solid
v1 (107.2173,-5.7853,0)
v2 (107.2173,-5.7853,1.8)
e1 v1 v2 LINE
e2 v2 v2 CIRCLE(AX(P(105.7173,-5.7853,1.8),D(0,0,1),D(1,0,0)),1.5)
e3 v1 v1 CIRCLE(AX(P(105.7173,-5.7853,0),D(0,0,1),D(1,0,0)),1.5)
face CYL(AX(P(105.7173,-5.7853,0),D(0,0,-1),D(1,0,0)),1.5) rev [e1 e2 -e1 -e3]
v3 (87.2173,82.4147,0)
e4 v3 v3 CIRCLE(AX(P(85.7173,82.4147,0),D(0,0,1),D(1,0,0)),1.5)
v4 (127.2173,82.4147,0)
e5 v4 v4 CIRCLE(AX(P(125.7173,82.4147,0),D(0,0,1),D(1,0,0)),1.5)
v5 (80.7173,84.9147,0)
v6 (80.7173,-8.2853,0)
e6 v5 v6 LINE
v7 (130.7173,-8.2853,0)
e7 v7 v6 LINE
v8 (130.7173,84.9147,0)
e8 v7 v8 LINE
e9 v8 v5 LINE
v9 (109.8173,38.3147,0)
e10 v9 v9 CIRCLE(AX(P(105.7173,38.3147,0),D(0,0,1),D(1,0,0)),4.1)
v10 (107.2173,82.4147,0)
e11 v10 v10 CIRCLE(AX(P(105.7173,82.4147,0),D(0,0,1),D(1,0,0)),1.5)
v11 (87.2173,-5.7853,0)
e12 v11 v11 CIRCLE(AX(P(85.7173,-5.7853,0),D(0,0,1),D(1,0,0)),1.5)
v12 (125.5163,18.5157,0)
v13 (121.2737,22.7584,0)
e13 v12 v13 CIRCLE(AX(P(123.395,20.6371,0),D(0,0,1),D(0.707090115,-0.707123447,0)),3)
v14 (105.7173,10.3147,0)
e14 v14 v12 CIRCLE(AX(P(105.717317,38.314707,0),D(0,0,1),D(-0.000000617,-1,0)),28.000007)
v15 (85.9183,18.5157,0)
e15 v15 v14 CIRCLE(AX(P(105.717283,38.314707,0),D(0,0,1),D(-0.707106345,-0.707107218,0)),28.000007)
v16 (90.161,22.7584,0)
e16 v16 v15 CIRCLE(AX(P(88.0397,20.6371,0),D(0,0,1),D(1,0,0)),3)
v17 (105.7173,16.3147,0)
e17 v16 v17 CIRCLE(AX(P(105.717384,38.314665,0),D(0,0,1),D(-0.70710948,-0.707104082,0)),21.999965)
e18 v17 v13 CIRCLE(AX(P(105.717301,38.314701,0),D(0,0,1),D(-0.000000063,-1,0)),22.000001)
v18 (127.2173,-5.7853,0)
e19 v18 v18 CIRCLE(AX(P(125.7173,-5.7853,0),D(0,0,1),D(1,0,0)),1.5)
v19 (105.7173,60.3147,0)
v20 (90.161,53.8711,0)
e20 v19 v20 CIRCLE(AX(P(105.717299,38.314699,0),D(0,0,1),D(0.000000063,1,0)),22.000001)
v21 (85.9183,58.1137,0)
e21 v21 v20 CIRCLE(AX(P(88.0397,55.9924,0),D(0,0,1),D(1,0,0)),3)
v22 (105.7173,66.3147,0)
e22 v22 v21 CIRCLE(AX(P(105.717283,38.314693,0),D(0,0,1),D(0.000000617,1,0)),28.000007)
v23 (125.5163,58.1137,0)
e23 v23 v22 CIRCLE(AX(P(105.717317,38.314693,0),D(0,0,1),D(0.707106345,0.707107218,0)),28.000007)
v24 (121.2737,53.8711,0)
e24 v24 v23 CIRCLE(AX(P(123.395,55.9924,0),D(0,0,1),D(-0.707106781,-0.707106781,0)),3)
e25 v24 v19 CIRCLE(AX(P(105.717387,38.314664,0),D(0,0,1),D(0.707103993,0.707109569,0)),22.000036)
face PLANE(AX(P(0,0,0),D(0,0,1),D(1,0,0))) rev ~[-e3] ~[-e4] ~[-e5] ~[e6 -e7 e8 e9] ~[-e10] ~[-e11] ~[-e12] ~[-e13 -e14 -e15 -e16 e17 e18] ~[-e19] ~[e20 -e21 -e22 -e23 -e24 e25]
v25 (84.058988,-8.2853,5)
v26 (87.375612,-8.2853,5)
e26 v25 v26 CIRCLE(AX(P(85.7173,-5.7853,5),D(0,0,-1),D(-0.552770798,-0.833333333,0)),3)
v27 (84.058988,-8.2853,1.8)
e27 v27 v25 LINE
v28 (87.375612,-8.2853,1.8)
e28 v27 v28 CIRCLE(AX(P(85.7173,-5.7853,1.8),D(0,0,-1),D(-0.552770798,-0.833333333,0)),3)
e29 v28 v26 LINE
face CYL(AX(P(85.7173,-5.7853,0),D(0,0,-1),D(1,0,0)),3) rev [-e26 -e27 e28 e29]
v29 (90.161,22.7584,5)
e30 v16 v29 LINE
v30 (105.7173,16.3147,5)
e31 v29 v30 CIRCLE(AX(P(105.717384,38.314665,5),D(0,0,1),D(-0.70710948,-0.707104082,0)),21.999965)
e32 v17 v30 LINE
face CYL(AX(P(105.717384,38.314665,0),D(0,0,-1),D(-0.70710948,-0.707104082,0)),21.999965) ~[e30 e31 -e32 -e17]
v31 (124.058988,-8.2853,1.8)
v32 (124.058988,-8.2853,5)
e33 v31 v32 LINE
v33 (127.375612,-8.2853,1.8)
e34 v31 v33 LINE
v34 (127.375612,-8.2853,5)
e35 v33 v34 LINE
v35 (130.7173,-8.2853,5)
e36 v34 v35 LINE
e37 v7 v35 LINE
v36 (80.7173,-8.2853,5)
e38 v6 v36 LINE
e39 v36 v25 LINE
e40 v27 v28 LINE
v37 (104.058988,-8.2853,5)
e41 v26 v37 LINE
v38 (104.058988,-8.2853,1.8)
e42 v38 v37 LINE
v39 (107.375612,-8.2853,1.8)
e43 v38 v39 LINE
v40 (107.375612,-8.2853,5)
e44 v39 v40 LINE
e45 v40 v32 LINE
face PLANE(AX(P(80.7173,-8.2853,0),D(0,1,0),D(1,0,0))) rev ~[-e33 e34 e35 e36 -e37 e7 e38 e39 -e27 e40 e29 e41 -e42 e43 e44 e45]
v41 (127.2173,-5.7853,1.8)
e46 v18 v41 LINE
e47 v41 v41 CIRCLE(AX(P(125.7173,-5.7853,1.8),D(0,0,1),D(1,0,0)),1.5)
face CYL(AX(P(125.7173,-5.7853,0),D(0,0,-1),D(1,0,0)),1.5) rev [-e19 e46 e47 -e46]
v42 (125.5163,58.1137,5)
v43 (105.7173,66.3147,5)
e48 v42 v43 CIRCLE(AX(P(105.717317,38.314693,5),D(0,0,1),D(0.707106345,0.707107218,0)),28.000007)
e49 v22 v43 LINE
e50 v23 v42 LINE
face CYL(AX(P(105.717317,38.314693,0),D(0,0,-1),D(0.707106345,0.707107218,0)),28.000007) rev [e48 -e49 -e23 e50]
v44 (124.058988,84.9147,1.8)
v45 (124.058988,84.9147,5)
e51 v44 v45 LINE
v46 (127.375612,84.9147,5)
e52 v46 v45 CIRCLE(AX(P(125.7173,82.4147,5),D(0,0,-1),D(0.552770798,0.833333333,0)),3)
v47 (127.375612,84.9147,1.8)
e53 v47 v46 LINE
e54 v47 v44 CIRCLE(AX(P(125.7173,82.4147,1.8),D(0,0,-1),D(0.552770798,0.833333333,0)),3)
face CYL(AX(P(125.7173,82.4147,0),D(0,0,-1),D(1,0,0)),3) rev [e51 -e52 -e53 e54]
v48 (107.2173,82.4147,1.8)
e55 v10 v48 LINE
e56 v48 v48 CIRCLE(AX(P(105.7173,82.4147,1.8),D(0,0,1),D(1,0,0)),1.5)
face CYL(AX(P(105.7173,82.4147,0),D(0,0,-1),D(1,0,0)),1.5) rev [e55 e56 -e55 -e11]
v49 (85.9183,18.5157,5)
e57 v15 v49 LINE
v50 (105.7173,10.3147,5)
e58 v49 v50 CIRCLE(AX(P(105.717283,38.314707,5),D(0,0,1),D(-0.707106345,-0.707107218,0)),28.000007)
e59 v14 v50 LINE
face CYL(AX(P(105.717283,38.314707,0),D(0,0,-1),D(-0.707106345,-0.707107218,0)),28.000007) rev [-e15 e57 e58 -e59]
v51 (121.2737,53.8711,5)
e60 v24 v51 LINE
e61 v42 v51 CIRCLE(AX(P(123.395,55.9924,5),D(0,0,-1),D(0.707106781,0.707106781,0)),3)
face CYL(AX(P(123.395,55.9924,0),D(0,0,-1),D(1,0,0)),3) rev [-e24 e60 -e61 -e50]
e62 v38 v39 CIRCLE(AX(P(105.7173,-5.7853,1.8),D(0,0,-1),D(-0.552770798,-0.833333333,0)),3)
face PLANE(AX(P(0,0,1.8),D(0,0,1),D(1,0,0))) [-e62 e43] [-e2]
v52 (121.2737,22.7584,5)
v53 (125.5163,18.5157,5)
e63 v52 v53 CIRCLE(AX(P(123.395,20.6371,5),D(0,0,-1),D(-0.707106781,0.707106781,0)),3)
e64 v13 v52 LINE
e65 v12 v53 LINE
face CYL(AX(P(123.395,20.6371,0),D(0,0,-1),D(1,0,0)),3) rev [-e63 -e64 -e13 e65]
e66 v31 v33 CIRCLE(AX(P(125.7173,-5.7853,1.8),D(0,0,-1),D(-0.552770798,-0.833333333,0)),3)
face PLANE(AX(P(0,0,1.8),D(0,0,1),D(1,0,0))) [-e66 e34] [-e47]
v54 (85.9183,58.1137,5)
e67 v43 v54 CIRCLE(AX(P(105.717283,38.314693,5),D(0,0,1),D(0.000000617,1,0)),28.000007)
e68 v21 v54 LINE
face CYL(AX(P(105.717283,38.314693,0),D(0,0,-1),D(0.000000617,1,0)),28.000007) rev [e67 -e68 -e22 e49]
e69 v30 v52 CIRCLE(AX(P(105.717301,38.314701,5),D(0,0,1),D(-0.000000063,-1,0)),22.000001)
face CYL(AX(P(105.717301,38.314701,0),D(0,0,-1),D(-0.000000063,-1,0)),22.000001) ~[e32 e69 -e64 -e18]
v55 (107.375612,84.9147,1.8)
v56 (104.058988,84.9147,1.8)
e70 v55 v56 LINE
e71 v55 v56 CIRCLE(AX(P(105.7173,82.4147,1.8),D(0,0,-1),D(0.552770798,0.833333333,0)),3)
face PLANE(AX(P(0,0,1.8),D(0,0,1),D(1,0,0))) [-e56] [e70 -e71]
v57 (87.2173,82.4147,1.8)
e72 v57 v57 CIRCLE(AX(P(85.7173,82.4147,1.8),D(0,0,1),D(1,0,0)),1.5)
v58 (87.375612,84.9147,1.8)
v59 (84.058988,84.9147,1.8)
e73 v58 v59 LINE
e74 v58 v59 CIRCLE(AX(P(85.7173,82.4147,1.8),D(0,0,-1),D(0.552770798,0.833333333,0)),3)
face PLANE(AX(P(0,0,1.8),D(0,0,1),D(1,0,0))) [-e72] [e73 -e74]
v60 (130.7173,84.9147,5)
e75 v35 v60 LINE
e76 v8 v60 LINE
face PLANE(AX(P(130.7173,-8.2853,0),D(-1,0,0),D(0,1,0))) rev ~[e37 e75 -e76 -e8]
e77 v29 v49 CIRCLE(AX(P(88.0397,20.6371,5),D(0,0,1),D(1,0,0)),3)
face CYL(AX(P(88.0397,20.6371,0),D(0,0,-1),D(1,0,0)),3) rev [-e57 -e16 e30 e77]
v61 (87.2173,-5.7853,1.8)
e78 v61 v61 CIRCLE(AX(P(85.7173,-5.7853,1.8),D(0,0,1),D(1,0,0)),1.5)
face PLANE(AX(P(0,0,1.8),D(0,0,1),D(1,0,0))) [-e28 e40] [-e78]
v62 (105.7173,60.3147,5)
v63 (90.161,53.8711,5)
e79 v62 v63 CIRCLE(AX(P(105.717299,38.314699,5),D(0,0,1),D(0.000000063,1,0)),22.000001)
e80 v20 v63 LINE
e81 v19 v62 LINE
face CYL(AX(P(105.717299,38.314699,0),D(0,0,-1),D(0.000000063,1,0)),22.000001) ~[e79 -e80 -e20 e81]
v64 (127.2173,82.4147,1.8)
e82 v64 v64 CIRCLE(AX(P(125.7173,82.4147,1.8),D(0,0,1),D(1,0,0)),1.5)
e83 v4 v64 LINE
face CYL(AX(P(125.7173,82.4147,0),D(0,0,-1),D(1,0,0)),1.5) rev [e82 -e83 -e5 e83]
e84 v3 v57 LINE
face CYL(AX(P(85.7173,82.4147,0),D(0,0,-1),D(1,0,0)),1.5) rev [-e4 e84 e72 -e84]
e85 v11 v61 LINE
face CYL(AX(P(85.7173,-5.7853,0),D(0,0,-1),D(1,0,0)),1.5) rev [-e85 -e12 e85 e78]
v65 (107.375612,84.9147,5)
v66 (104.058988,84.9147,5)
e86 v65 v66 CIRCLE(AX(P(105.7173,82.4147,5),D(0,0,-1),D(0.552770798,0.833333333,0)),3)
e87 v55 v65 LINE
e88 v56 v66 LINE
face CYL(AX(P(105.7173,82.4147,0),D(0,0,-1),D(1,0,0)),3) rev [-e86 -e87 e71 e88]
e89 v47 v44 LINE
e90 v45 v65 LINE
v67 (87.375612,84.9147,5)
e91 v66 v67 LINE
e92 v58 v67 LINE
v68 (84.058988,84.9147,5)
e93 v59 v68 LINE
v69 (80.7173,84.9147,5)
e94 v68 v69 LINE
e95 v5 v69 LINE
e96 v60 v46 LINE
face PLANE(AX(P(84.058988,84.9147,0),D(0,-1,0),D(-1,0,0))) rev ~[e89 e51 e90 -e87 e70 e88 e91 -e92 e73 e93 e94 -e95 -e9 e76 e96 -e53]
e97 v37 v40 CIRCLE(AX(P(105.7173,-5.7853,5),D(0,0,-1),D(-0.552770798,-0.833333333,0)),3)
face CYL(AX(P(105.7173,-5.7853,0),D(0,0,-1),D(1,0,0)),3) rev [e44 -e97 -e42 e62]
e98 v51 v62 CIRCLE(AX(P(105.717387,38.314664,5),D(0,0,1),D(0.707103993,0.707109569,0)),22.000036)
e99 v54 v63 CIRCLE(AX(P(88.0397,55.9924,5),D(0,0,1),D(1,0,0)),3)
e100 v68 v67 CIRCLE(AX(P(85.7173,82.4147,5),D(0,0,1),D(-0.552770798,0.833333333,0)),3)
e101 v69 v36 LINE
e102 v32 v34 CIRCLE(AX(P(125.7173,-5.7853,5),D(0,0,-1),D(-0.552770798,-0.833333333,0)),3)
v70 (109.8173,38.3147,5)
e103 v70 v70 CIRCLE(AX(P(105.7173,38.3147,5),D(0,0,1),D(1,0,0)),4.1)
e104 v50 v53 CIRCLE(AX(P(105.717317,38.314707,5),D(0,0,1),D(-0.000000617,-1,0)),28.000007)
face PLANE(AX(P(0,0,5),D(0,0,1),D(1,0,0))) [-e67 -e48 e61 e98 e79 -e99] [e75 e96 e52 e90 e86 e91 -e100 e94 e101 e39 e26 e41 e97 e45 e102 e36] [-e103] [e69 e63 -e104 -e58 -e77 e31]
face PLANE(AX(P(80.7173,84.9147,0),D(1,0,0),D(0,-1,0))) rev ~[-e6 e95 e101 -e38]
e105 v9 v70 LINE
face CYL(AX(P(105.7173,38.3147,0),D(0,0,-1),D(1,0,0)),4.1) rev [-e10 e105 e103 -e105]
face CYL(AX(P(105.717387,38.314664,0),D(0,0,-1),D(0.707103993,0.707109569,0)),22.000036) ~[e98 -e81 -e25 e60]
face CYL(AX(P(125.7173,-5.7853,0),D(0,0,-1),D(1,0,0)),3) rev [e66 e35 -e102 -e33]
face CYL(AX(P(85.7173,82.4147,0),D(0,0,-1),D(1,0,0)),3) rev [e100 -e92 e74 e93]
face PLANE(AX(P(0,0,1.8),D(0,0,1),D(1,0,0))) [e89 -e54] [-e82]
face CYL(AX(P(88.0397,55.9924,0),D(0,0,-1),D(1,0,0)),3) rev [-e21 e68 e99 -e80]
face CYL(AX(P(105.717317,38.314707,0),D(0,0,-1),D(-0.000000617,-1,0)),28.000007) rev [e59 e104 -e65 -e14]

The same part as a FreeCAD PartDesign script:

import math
import FreeCAD as App
import Part
import Sketcher

V = App.Vector

doc = App.newDocument("Part")
body = doc.addObject("PartDesign::Body", "Body")

sketch1 = doc.addObject("Sketcher::SketchObject", "Sketch")
body.addObject(sketch1)
sketch1.AttachmentSupport = (doc.XY_Plane, [""])
sketch1.MapMode = "FlatFace"
sketch1.addGeometry([
    Part.LineSegment(V(84.1, 84.9, 0), V(80.7, 84.9, 0)),
    Part.LineSegment(V(80.7, 84.9, 0), V(80.7, -8.3, 0)),
    Part.LineSegment(V(80.7, -8.3, 0), V(84.1, -8.3, 0)),
    Part.ArcOfCircle(Part.Circle(V(85.7, -5.8, 0), V(0, 0, 1), 3), math.radians(-56), math.radians(236)),
    Part.LineSegment(V(87.4, -8.3, 0), V(104.1, -8.3, 0)),
    Part.ArcOfCircle(Part.Circle(V(105.7, -5.8, 0), V(0, 0, 1), 3), math.radians(-56), math.radians(236)),
    Part.LineSegment(V(107.4, -8.3, 0), V(124.1, -8.3, 0)),
    Part.ArcOfCircle(Part.Circle(V(125.7, -5.8, 0), V(0, 0, 1), 3), math.radians(-56), math.radians(236)),
    Part.LineSegment(V(127.4, -8.3, 0), V(130.7, -8.3, 0)),
    Part.LineSegment(V(130.7, -8.3, 0), V(130.7, 84.9, 0)),
    Part.LineSegment(V(130.7, 84.9, 0), V(127.4, 84.9, 0)),
    Part.ArcOfCircle(Part.Circle(V(125.7, 82.4, 0), V(0, 0, 1), 3), math.radians(124), math.radians(416)),
    Part.LineSegment(V(124.1, 84.9, 0), V(107.4, 84.9, 0)),
    Part.ArcOfCircle(Part.Circle(V(105.7, 82.4, 0), V(0, 0, 1), 3), math.radians(124), math.radians(416)),
    Part.LineSegment(V(104.1, 84.9, 0), V(87.4, 84.9, 0)),
    Part.ArcOfCircle(Part.Circle(V(85.7, 82.4, 0), V(0, 0, 1), 3), math.radians(124), math.radians(416)),
    Part.ArcOfCircle(Part.Circle(V(105.7, 38.3, 0), V(0, 0, 1), 28), math.radians(-90), math.radians(-45)),
    Part.ArcOfCircle(Part.Circle(V(105.7, 38.3, 0), V(0, 0, 1), 28), math.radians(-135), math.radians(-90)),
    Part.ArcOfCircle(Part.Circle(V(88, 20.6, 0), V(0, 0, 1), 3), math.radians(45), math.radians(225)),
    Part.ArcOfCircle(Part.Circle(V(105.7, 38.3, 0), V(0, 0, 1), 22), math.radians(-135), math.radians(-90)),
    Part.ArcOfCircle(Part.Circle(V(105.7, 38.3, 0), V(0, 0, 1), 22), math.radians(-90), math.radians(-45)),
    Part.ArcOfCircle(Part.Circle(V(123.4, 20.6, 0), V(0, 0, 1), 3), math.radians(-45), math.radians(135)),
    Part.Circle(V(105.7, 38.3, 0), V(0, 0, 1), 4.1),
    Part.ArcOfCircle(Part.Circle(V(105.7, 38.3, 0), V(0, 0, 1), 28), math.radians(45), math.radians(90)),
    Part.ArcOfCircle(Part.Circle(V(123.4, 56, 0), V(0, 0, 1), 3), math.radians(-135), math.radians(45)),
    Part.ArcOfCircle(Part.Circle(V(105.7, 38.3, 0), V(0, 0, 1), 22), math.radians(45), math.radians(90)),
    Part.ArcOfCircle(Part.Circle(V(105.7, 38.3, 0), V(0, 0, 1), 22), math.radians(90), math.radians(135)),
    Part.ArcOfCircle(Part.Circle(V(88, 56, 0), V(0, 0, 1), 3), math.radians(135), math.radians(315)),
    Part.ArcOfCircle(Part.Circle(V(105.7, 38.3, 0), V(0, 0, 1), 28), math.radians(90), math.radians(135)),
], False)
sketch1.addConstraint([
    Sketcher.Constraint("Coincident", 0, 2, 1, 1),
    Sketcher.Constraint("Coincident", 1, 2, 2, 1),
    Sketcher.Constraint("Coincident", 2, 2, 3, 2),
    Sketcher.Constraint("Coincident", 3, 1, 4, 1),
    Sketcher.Constraint("Coincident", 4, 2, 5, 2),
    Sketcher.Constraint("Coincident", 5, 1, 6, 1),
    Sketcher.Constraint("Coincident", 6, 2, 7, 2),
    Sketcher.Constraint("Coincident", 7, 1, 8, 1),
    Sketcher.Constraint("Coincident", 8, 2, 9, 1),
    Sketcher.Constraint("Coincident", 9, 2, 10, 1),
    Sketcher.Constraint("Coincident", 10, 2, 11, 2),
    Sketcher.Constraint("Coincident", 11, 1, 12, 1),
    Sketcher.Constraint("Coincident", 12, 2, 13, 2),
    Sketcher.Constraint("Coincident", 13, 1, 14, 1),
    Sketcher.Constraint("Coincident", 14, 2, 15, 2),
    Sketcher.Constraint("Coincident", 15, 1, 0, 1),
    Sketcher.Constraint("Tangent", 16, 1, 17, 2),
    Sketcher.Constraint("Tangent", 17, 1, 18, 2),
    Sketcher.Constraint("Tangent", 18, 1, 19, 1),
    Sketcher.Constraint("Tangent", 19, 2, 20, 1),
    Sketcher.Constraint("Tangent", 20, 2, 21, 2),
    Sketcher.Constraint("Tangent", 21, 1, 16, 2),
    Sketcher.Constraint("Tangent", 23, 1, 24, 2),
    Sketcher.Constraint("Tangent", 24, 1, 25, 1),
    Sketcher.Constraint("Tangent", 25, 2, 26, 1),
    Sketcher.Constraint("Tangent", 26, 2, 27, 2),
    Sketcher.Constraint("Tangent", 27, 1, 28, 2),
    Sketcher.Constraint("Tangent", 28, 1, 23, 2),
    Sketcher.Constraint("Horizontal", 0),
    Sketcher.Constraint("Vertical", 1),
    Sketcher.Constraint("Horizontal", 2),
    Sketcher.Constraint("Horizontal", 4),
    Sketcher.Constraint("Horizontal", 6),
    Sketcher.Constraint("Horizontal", 8),
    Sketcher.Constraint("Vertical", 9),
    Sketcher.Constraint("Horizontal", 10),
    Sketcher.Constraint("Horizontal", 12),
    Sketcher.Constraint("Horizontal", 14),
    Sketcher.Constraint("Coincident", 19, 3, 16, 3),
    Sketcher.Constraint("Coincident", 22, 3, 16, 3),
    Sketcher.Constraint("Coincident", 23, 3, 16, 3),
    Sketcher.Constraint("Coincident", 25, 3, 16, 3),
    Sketcher.Constraint("Equal", 3, 5),
    Sketcher.Constraint("Equal", 5, 7),
    Sketcher.Constraint("Equal", 7, 11),
    Sketcher.Constraint("Equal", 11, 13),
    Sketcher.Constraint("Equal", 13, 15),
    Sketcher.Constraint("Equal", 16, 17),
    Sketcher.Constraint("Equal", 15, 18),
    Sketcher.Constraint("Equal", 19, 20),
    Sketcher.Constraint("Equal", 17, 23),
    Sketcher.Constraint("Equal", 21, 24),
    Sketcher.Constraint("Equal", 25, 26),
    Sketcher.Constraint("Equal", 24, 27),
    Sketcher.Constraint("Horizontal", 3, 3, 5, 3),
    Sketcher.Constraint("Horizontal", 5, 3, 7, 3),
    Sketcher.Constraint("Horizontal", 11, 3, 13, 3),
    Sketcher.Constraint("Horizontal", 13, 3, 15, 3),
    Sketcher.Constraint("Horizontal", 18, 3, 21, 3),
    Sketcher.Constraint("Horizontal", 24, 3, 27, 3),
    Sketcher.Constraint("Horizontal", 2, 2, 3, 1),
    Sketcher.Constraint("Horizontal", 4, 2, 5, 1),
    Sketcher.Constraint("Horizontal", 6, 2, 7, 1),
    Sketcher.Constraint("Horizontal", 0, 2, 9, 2),
    Sketcher.Constraint("Horizontal", 10, 2, 11, 1),
    Sketcher.Constraint("Horizontal", 12, 2, 13, 1),
    Sketcher.Constraint("Vertical", 7, 3, 11, 3),
    Sketcher.Constraint("Vertical", 5, 3, 13, 3),
    Sketcher.Constraint("Vertical", 3, 3, 15, 3),
    Sketcher.Constraint("Vertical", 13, 3, 16, 3),
    Sketcher.Constraint("Vertical", 21, 3, 24, 3),
    Sketcher.Constraint("Vertical", 7, 1, 10, 2),
    Sketcher.Constraint("Vertical", 28, 3, 16, 1),
    Sketcher.Constraint("Vertical", 16, 1, 19, 2),
    Sketcher.Constraint("Vertical", 19, 2, 25, 2),
    Sketcher.Constraint("Vertical", 25, 2, 28, 1),
    Sketcher.Constraint("Equal", 4, 6),
    Sketcher.Constraint("Equal", 2, 8),
    Sketcher.Constraint("Radius", 3, 3.0),
    Sketcher.Constraint("Diameter", 22, 8.2),
    Sketcher.Constraint("DistanceY", 1, 2, 1, 1, 93.2),
    Sketcher.Constraint("Radius", 16, 28.0),
    Sketcher.Constraint("DistanceX", 3, 3, 5, 3, 20.0),
    Sketcher.Constraint("DistanceX", 0, 2, 11, 3, 45.0),
    Sketcher.Constraint("DistanceY", 15, 3, 0, 2, 2.5),
    Sketcher.Constraint("DistanceY", 16, 3, 13, 3, 44.1),
    Sketcher.Constraint("DistanceY", -1, 1, 18, 3, 20.637),
    Sketcher.Constraint("DistanceX", -1, 1, 21, 3, 123.395),
    Sketcher.Constraint("DistanceX", -1, 1, 2, 2, 84.059),
])
pad1 = doc.addObject("PartDesign::Pad", "Pad")
body.addObject(pad1)
pad1.Profile = sketch1
pad1.Length = 5

sketch2 = doc.addObject("Sketcher::SketchObject", "Sketch001")
body.addObject(sketch2)
sketch2.AttachmentSupport = (doc.XY_Plane, [""])
sketch2.MapMode = "FlatFace"
sketch2.addGeometry([
    Part.LineSegment(V(87.4, 84.9, 0), V(84.1, 84.9, 0)),
    Part.ArcOfCircle(Part.Circle(V(85.7, 82.4, 0), V(0, 0, 1), 3), math.radians(124), math.radians(416)),
    Part.Circle(V(85.7, 82.4, 0), V(0, 0, 1), 1.5),
    Part.ArcOfCircle(Part.Circle(V(85.7, -5.8, 0), V(0, 0, 1), 3), math.radians(-56), math.radians(236)),
    Part.LineSegment(V(84.1, -8.3, 0), V(87.4, -8.3, 0)),
    Part.Circle(V(85.7, -5.8, 0), V(0, 0, 1), 1.5),
    Part.LineSegment(V(107.4, 84.9, 0), V(104.1, 84.9, 0)),
    Part.ArcOfCircle(Part.Circle(V(105.7, 82.4, 0), V(0, 0, 1), 3), math.radians(124), math.radians(416)),
    Part.Circle(V(105.7, 82.4, 0), V(0, 0, 1), 1.5),
    Part.ArcOfCircle(Part.Circle(V(105.7, -5.8, 0), V(0, 0, 1), 3), math.radians(-56), math.radians(236)),
    Part.LineSegment(V(104.1, -8.3, 0), V(107.4, -8.3, 0)),
    Part.Circle(V(105.7, -5.8, 0), V(0, 0, 1), 1.5),
    Part.LineSegment(V(127.4, 84.9, 0), V(124.1, 84.9, 0)),
    Part.ArcOfCircle(Part.Circle(V(125.7, 82.4, 0), V(0, 0, 1), 3), math.radians(124), math.radians(416)),
    Part.Circle(V(125.7, 82.4, 0), V(0, 0, 1), 1.5),
    Part.ArcOfCircle(Part.Circle(V(125.7, -5.8, 0), V(0, 0, 1), 3), math.radians(-56), math.radians(236)),
    Part.LineSegment(V(124.1, -8.3, 0), V(127.4, -8.3, 0)),
    Part.Circle(V(125.7, -5.8, 0), V(0, 0, 1), 1.5),
], False)
sketch2.addConstraint([
    Sketcher.Constraint("Coincident", 0, 1, 1, 2),
    Sketcher.Constraint("Coincident", 1, 1, 0, 2),
    Sketcher.Constraint("Coincident", 3, 1, 4, 2),
    Sketcher.Constraint("Coincident", 4, 1, 3, 2),
    Sketcher.Constraint("Coincident", 6, 1, 7, 2),
    Sketcher.Constraint("Coincident", 7, 1, 6, 2),
    Sketcher.Constraint("Coincident", 9, 1, 10, 2),
    Sketcher.Constraint("Coincident", 10, 1, 9, 2),
    Sketcher.Constraint("Coincident", 12, 1, 13, 2),
    Sketcher.Constraint("Coincident", 13, 1, 12, 2),
    Sketcher.Constraint("Coincident", 15, 1, 16, 2),
    Sketcher.Constraint("Coincident", 16, 1, 15, 2),
    Sketcher.Constraint("Horizontal", 0),
    Sketcher.Constraint("Horizontal", 4),
    Sketcher.Constraint("Horizontal", 6),
    Sketcher.Constraint("Horizontal", 10),
    Sketcher.Constraint("Horizontal", 12),
    Sketcher.Constraint("Horizontal", 16),
    Sketcher.Constraint("Coincident", 2, 3, 1, 3),
    Sketcher.Constraint("Coincident", 5, 3, 3, 3),
    Sketcher.Constraint("Coincident", 8, 3, 7, 3),
    Sketcher.Constraint("Coincident", 11, 3, 9, 3),
    Sketcher.Constraint("Coincident", 14, 3, 13, 3),
    Sketcher.Constraint("Coincident", 17, 3, 15, 3),
    Sketcher.Constraint("Equal", 1, 3),
    Sketcher.Constraint("Equal", 2, 5),
    Sketcher.Constraint("Equal", 3, 7),
    Sketcher.Constraint("Equal", 5, 8),
    Sketcher.Constraint("Equal", 7, 9),
    Sketcher.Constraint("Equal", 8, 11),
    Sketcher.Constraint("Equal", 9, 13),
    Sketcher.Constraint("Equal", 11, 14),
    Sketcher.Constraint("Equal", 13, 15),
    Sketcher.Constraint("Equal", 14, 17),
    Sketcher.Constraint("Horizontal", 2, 3, 7, 3),
    Sketcher.Constraint("Horizontal", 5, 3, 9, 3),
    Sketcher.Constraint("Horizontal", 8, 3, 13, 3),
    Sketcher.Constraint("Horizontal", 11, 3, 15, 3),
    Sketcher.Constraint("Horizontal", 1, 1, 6, 1),
    Sketcher.Constraint("Horizontal", 4, 1, 9, 1),
    Sketcher.Constraint("Horizontal", 7, 1, 12, 1),
    Sketcher.Constraint("Horizontal", 10, 1, 15, 1),
    Sketcher.Constraint("Vertical", 2, 3, 3, 3),
    Sketcher.Constraint("Vertical", 8, 3, 9, 3),
    Sketcher.Constraint("Vertical", 14, 3, 15, 3),
    Sketcher.Constraint("Vertical", 0, 1, 3, 1),
    Sketcher.Constraint("Diameter", 2, 3.0),
    Sketcher.Constraint("Radius", 1, 3.0),
    Sketcher.Constraint("DistanceX", 1, 3, 7, 3, 20.0),
    Sketcher.Constraint("DistanceX", 7, 3, 13, 3, 20.0),
    Sketcher.Constraint("DistanceY", 1, 3, 0, 1, 2.5),
    Sketcher.Constraint("DistanceY", 3, 3, 1, 3, 88.2),
    Sketcher.Constraint("DistanceX", -1, 1, 1, 1, 84.059),
    Sketcher.Constraint("DistanceY", -1, 1, 1, 3, 82.4147),
])
pad2 = doc.addObject("PartDesign::Pad", "Pad001")
body.addObject(pad2)
pad2.Profile = sketch2
pad2.Length = 1.8

doc.recompute()
